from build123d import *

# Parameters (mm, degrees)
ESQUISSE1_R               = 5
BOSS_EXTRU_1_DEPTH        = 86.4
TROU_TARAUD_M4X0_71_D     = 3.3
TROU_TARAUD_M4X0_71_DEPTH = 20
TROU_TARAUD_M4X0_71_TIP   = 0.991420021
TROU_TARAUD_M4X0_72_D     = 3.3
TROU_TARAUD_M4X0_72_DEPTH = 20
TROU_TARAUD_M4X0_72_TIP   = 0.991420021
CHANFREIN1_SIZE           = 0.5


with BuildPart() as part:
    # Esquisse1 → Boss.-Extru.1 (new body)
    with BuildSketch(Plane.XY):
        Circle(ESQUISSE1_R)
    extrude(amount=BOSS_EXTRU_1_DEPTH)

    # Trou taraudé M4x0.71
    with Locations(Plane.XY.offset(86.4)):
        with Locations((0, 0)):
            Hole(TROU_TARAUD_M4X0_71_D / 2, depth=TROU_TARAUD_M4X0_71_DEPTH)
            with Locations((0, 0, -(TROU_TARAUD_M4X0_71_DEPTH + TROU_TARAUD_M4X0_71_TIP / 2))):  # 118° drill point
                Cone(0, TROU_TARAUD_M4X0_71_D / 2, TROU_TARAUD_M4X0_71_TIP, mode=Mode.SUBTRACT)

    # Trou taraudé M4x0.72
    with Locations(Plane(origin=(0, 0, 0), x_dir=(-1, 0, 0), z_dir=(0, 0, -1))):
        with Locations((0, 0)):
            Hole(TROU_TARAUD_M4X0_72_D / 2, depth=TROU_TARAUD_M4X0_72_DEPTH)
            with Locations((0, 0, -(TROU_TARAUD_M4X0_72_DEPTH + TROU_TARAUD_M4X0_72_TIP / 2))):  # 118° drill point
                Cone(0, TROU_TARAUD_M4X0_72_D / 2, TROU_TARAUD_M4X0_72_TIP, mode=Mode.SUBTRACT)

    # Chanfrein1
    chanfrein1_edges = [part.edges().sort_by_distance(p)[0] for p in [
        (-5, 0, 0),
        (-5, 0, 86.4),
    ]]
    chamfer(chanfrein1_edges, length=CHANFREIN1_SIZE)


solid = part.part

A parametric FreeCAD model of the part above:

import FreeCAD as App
import Part
import Sketcher


def edges_at(feature, points):
    """Names of the edges that pass closest to the given points."""
    edges = feature.Shape.Edges
    near = lambda p: min(range(len(edges)), key=lambda i: edges[i].distToShape(Part.Vertex(*p))[0])
    return sorted({f"Edge{near(p) + 1}" for p in points})

doc = App.newDocument("Part")
params = doc.addObject("Spreadsheet::Sheet", "Params")
for row, (alias, value) in enumerate([
    ("sketch1_diameter", "10 mm"),
    ("pad1_length", "86.4 mm"),
    ("sketch2_diameter", "3.3 mm"),
    ("hole_diameter", "3.3 mm"),
    ("hole_depth", "20 mm"),
    ("sketch3_diameter", "3.3 mm"),
    ("hole2_diameter", "3.3 mm"),
    ("hole2_depth", "20 mm"),
    ("chamfer_size", "0.5 mm"),
], start=1):
    params.set(f"A{row}", alias)
    params.set(f"B{row}", "=" + value)
    params.setAlias(f"B{row}", alias)

body = doc.addObject("PartDesign::Body", "Body")

# Sketch on XY plane
sketch1 = body.newObject("Sketcher::SketchObject", "Sketch")
sketch1.AttachmentSupport = (doc.getObject("XY_Plane"), [""])
sketch1.MapMode = "FlatFace"
sketch1.addGeometry(Part.Circle(App.Vector(0, 0, 0), App.Vector(0, 0, 1), 5), False)
sketch1.addConstraint([
    Sketcher.Constraint("Coincident", 0, 3, -1, 1),
    Sketcher.Constraint("Diameter", 0, 10.0),
])
sketch1.setExpression("Constraints[1]", "Params.sketch1_diameter")
pad1 = body.newObject("PartDesign::Pad", "Pad")
pad1.Profile = sketch1
pad1.setExpression("Length", "Params.pad1_length")

# Sketch on XY plane
sketch2 = body.newObject("Sketcher::SketchObject", "Sketch001")
sketch2.AttachmentSupport = (doc.getObject("XY_Plane"), [""])
sketch2.MapMode = "FlatFace"
sketch2.AttachmentOffset = App.Placement(App.Vector(0, 0, 86.4), App.Rotation())
sketch2.addGeometry(Part.Circle(App.Vector(0, 0, 0), App.Vector(0, 0, 1), 1.6), False)
sketch2.addConstraint([
    Sketcher.Constraint("Coincident", 0, 3, -1, 1),
    Sketcher.Constraint("Diameter", 0, 3.3),
])
sketch2.setExpression("Constraints[1]", "Params.sketch2_diameter")
doc.recompute()
hole = body.newObject("PartDesign::Hole", "Hole")
hole.Profile = sketch2
hole.ThreadType = "None"
hole.setExpression("Diameter", "Params.hole_diameter")
hole.DepthType = "Dimension"
hole.setExpression("Depth", "Params.hole_depth")
hole.DrillPoint = "Angled"
hole.DrillPointAngle = 118

# Sketch on XY plane
sketch3 = body.newObject("Sketcher::SketchObject", "Sketch002")
sketch3.AttachmentSupport = (doc.getObject("XY_Plane"), [""])
sketch3.MapMode = "FlatFace"
sketch3.addGeometry(Part.Circle(App.Vector(0, 0, 0), App.Vector(0, 0, 1), 1.6), False)
sketch3.addConstraint([
    Sketcher.Constraint("Coincident", 0, 3, -1, 1),
    Sketcher.Constraint("Diameter", 0, 3.3),
])
sketch3.setExpression("Constraints[1]", "Params.sketch3_diameter")
doc.recompute()
hole2 = body.newObject("PartDesign::Hole", "Hole001")
hole2.Profile = sketch3
hole2.ThreadType = "None"
hole2.setExpression("Diameter", "Params.hole2_diameter")
hole2.DepthType = "Dimension"
hole2.setExpression("Depth", "Params.hole2_depth")
hole2.DrillPoint = "Angled"
hole2.DrillPointAngle = 118
hole2.Reversed = True
doc.recompute()

chamfer = body.newObject("PartDesign::Chamfer", "Chamfer")
chamfer.Base = (hole2, edges_at(hole2, [(-5, 0, 0), (-5, 0, 86.4)]))
chamfer.setExpression("Size", "Params.chamfer_size")

doc.recompute()
